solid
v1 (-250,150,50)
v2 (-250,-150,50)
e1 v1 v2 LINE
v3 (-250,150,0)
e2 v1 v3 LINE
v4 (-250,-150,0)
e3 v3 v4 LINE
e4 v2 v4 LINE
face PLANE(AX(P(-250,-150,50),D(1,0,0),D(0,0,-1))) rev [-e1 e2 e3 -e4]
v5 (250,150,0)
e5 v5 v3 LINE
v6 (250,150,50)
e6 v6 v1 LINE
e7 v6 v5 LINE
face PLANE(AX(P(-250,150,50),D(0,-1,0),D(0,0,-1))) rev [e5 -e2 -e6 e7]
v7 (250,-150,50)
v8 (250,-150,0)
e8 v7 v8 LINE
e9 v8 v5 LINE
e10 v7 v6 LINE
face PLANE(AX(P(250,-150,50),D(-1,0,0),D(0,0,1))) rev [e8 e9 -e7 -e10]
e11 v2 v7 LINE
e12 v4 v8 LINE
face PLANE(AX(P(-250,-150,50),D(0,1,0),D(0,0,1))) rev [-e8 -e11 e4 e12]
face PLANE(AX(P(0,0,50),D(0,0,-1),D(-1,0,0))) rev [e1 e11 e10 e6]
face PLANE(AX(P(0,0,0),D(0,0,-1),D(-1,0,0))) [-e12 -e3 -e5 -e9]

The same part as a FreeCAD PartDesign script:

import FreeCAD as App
import Part
import Sketcher
from FreeCAD import Vector
Q = App.Units.Quantity


def add_polygon(sketch, points):
    """Adds a closed chain of lines whose ends are joined by coincident constraints."""
    first, n = sketch.GeometryCount, len(points)
    for a, b in zip(points, points[1:] + points[:1]):
        sketch.addGeometry(Part.LineSegment(App.Vector(*a, 0), App.Vector(*b, 0)), False)
    for i in range(n):
        sketch.addConstraint(Sketcher.Constraint("Coincident", first + i, 2, first + (i + 1) % n, 1))

doc = App.newDocument("Part")
body = doc.addObject("PartDesign::Body", "Body")

# Sketch on XY plane
sketch1 = doc.addObject("Sketcher::SketchObject", "Sketch")
body.addObject(sketch1)
sketch1.AttachmentSupport = (doc.XY_Plane, [""])
sketch1.MapMode = "FlatFace"
add_polygon(sketch1, [(-250, 150), (-250, -150), (250, -150), (250, 150)])  # lines 0-3
sketch1.addConstraint([
    Sketcher.Constraint("Vertical", 0),
    Sketcher.Constraint("Horizontal", 1),
    Sketcher.Constraint("Vertical", 2),
    Sketcher.Constraint("Horizontal", 3),
    Sketcher.Constraint("Symmetric", 0, 2, 2, 2, -1, 1),
    Sketcher.Constraint("DistanceX", 1, 1, 1, 2, Q("500 mm")),
    Sketcher.Constraint("DistanceY", 0, 2, 0, 1, Q("300 mm")),
])
pad1 = doc.addObject("PartDesign::Pad", "Pad")
body.addObject(pad1)
pad1.Profile = sketch1
pad1.Length = 50

doc.recompute()
